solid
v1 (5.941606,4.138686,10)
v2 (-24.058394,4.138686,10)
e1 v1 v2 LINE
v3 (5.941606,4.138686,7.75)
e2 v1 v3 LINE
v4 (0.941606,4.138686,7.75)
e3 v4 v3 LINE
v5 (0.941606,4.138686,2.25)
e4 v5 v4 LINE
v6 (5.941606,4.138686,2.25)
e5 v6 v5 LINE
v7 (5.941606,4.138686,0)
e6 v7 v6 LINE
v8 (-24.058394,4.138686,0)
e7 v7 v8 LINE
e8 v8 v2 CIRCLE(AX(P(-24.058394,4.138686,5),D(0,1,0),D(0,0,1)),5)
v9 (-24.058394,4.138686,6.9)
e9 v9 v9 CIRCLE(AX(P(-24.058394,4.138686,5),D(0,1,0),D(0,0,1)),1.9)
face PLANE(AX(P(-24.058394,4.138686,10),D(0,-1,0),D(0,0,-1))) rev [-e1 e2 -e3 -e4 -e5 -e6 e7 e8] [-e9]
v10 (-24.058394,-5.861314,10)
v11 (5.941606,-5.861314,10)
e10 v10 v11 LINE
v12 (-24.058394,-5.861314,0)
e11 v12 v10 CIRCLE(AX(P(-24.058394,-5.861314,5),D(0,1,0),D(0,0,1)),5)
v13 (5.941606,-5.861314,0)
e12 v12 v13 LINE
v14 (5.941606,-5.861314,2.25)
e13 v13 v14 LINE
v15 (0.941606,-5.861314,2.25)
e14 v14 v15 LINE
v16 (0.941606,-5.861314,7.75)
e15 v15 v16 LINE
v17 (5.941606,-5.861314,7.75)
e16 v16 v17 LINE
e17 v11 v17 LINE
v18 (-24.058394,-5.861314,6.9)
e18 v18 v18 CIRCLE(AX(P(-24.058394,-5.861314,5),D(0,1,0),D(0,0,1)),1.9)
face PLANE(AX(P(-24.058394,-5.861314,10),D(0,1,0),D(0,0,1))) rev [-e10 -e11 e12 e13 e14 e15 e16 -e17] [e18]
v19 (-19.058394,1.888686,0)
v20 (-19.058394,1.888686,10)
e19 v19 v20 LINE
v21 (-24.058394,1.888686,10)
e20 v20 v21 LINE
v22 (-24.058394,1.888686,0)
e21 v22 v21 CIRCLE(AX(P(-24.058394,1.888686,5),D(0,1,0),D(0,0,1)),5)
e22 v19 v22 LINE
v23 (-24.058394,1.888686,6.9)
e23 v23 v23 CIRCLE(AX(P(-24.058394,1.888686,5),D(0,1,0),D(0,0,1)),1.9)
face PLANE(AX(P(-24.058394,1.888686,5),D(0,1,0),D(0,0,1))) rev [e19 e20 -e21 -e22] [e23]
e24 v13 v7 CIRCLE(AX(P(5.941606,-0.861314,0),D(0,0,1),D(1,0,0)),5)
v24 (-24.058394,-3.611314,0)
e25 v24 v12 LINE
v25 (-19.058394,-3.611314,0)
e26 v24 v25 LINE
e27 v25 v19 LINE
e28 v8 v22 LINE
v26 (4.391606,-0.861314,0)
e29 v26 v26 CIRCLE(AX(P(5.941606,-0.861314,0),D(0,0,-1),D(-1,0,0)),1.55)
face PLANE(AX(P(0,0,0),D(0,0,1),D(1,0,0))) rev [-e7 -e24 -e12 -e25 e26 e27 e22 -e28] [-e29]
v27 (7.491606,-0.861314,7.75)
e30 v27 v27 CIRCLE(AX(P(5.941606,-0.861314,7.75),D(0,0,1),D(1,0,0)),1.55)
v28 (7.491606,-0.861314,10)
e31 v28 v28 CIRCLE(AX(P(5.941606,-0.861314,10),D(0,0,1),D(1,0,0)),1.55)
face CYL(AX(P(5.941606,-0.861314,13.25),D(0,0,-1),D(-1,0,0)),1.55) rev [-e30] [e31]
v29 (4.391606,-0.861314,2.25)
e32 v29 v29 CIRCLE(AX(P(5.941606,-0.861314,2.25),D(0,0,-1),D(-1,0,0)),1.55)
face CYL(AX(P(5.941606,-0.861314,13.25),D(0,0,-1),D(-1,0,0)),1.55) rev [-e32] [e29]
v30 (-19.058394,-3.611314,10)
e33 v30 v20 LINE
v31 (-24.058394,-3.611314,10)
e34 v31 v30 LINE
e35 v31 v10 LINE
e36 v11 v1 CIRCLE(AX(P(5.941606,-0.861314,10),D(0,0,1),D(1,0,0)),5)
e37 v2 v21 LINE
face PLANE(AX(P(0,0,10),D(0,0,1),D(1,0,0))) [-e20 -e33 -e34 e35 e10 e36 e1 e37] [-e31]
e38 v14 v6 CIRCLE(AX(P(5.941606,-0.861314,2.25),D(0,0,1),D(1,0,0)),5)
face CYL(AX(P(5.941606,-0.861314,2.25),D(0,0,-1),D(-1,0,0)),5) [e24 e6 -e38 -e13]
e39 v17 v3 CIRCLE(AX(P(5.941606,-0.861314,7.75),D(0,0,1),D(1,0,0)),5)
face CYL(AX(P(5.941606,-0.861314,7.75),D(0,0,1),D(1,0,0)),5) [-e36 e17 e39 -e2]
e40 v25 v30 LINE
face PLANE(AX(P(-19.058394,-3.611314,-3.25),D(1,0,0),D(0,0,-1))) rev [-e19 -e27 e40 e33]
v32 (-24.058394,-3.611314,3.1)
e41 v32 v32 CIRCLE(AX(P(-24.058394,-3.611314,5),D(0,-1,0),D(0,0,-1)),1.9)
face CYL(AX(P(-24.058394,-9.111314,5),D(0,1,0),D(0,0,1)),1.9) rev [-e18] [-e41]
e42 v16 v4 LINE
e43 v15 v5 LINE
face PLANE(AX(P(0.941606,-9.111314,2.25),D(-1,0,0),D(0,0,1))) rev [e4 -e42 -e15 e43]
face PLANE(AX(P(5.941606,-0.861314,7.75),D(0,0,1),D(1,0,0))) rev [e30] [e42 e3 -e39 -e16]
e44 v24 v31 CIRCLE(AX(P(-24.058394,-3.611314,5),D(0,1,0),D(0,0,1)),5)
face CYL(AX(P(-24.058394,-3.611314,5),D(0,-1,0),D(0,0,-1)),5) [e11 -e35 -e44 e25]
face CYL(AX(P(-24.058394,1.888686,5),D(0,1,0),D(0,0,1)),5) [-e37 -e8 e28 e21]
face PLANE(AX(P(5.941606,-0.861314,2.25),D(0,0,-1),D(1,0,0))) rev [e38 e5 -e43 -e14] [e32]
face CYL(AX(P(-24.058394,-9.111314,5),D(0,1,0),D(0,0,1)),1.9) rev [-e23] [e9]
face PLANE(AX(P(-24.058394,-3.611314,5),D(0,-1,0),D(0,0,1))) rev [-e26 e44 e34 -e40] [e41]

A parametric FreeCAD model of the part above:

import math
import FreeCAD as App
import Part
import Sketcher
from FreeCAD import Vector
Q = App.Units.Quantity


def add_polygon(sketch, points):
    """Adds a closed chain of lines whose ends are joined by coincident constraints."""
    first, n = sketch.GeometryCount, len(points)
    for a, b in zip(points, points[1:] + points[:1]):
        sketch.addGeometry(Part.LineSegment(App.Vector(*a, 0), App.Vector(*b, 0)), False)
    for i in range(n):
        sketch.addConstraint(Sketcher.Constraint("Coincident", first + i, 2, first + (i + 1) % n, 1))

doc = App.newDocument("Part")
params = doc.addObject("Spreadsheet::Sheet", "Params")
for row, (alias, value) in enumerate([
    ("sketch1_width", "30 mm"),
    ("sketch1_height", "10 mm"),
    ("pad1_length", "10 mm"),
    ("sketch2_diameter", "10 mm"),
    ("pad2_length", "2.25 mm"),
    ("sketch3_radius", "5 mm"),
    ("pad3_length", "2.25 mm"),
    ("sketch4_radius", "5 mm"),
    ("pad4_length", "2.25 mm"),
    ("sketch5_radius", "5 mm"),
    ("pad5_length", "2.25 mm"),
    ("sketch6_diameter", "3.8 mm"),
    ("pocket1_length", "13.25 mm"),
    ("sketch7_diameter", "3.1 mm"),
    ("pocket2_length", "13.25 mm"),
    ("sketch8_width", "5 mm"),
    ("sketch8_height", "5.5 mm"),
    ("pocket3_length", "13.25 mm"),
    ("sketch9_width", "5 mm"),
    ("sketch9_height", "5.5 mm"),
    ("pocket4_length", "13.25 mm"),
], start=1):
    params.set(f"A{row}", alias)
    params.set(f"B{row}", "=" + value)
    params.setAlias(f"B{row}", alias)

body = doc.addObject("PartDesign::Body", "Body")

sketch1 = body.newObject("Sketcher::SketchObject", "Sketch")
sketch1.AttachmentSupport = (doc.getObject("XY_Plane"), [""])
sketch1.MapMode = "FlatFace"
add_polygon(sketch1, [(-24, 4), (-24, -6), (6, -6), (6, 4)])
sketch1.addConstraint([
    Sketcher.Constraint("Vertical", 0),
    Sketcher.Constraint("Horizontal", 1),
    Sketcher.Constraint("Vertical", 2),
    Sketcher.Constraint("Horizontal", 3),
    Sketcher.Constraint("DistanceX", 1, 1, 1, 2, Q("30 mm")),
    Sketcher.Constraint("DistanceY", 0, 2, 0, 1, Q("10 mm")),
    Sketcher.Constraint("DistanceX", 0, 2, -1, 1, Q("24.058394 mm")),
    Sketcher.Constraint("DistanceY", 0, 2, -1, 1, Q("5.861314 mm")),
])
sketch1.setExpression("Constraints[8]", "Params.sketch1_width")
sketch1.setExpression("Constraints[9]", "Params.sketch1_height")
pad1 = body.newObject("PartDesign::Pad", "Pad")
pad1.Profile = sketch1
pad1.setExpression("Length", "Params.pad1_length")

sketch2 = body.newObject("Sketcher::SketchObject", "Sketch001")
sketch2.AttachmentSupport = (doc.getObject("XY_Plane"), [""])
sketch2.MapMode = "FlatFace"
sketch2.AttachmentOffset = App.Placement(Vector(0, 0, 10), App.Rotation())
sketch2.addGeometry(Part.Circle(Vector(6, -1, 0), Vector(0, 0, 1), 5), False)
sketch2.addConstraint([
    Sketcher.Constraint("Diameter", 0, Q("10 mm")),
    Sketcher.Constraint("DistanceX", -1, 1, 0, 3, Q("5.941606 mm")),
    Sketcher.Constraint("DistanceY", 0, 3, -1, 1, Q("0.861314 mm")),
])
sketch2.setExpression("Constraints[0]", "Params.sketch2_diameter")
pad2 = body.newObject("PartDesign::Pad", "Pad001")
pad2.Profile = sketch2
pad2.setExpression("Length", "Params.pad2_length")
pad2.Reversed = True

sketch3 = body.newObject("Sketcher::SketchObject", "Sketch002")
sketch3.AttachmentSupport = (doc.getObject("XZ_Plane"), [""])
sketch3.MapMode = "FlatFace"
sketch3.AttachmentOffset = App.Placement(Vector(0, 0, -4.138686), App.Rotation())
sketch3.addGeometry([
    Part.LineSegment(Vector(-24, 10, 0), Vector(-24, 5, 0)),
    Part.LineSegment(Vector(-24, 5, 0), Vector(-29, 5, 0)),
    Part.ArcOfCircle(Part.Circle(Vector(-24, 5, 0), Vector(0, 0, 1), 5), math.radians(90), math.radians(180)),
], False)
sketch3.addConstraint([
    Sketcher.Constraint("Coincident", 0, 2, 1, 1),
    Sketcher.Constraint("Coincident", 1, 2, 2, 2),
    Sketcher.Constraint("Coincident", 2, 1, 0, 1),
    Sketcher.Constraint("Vertical", 0),
    Sketcher.Constraint("Horizontal", 1),
    Sketcher.Constraint("Coincident", 0, 2, 2, 3),
    Sketcher.Constraint("Radius", 2, Q("5 mm")),
    Sketcher.Constraint("DistanceY", -1, 1, 2, 3, Q("5 mm")),
    Sketcher.Constraint("DistanceX", 2, 3, -1, 1, Q("24.058394 mm")),
])
sketch3.setExpression("Constraints[6]", "Params.sketch3_radius")
pad3 = body.newObject("PartDesign::Pad", "Pad002")
pad3.Profile = sketch3
pad3.setExpression("Length", "Params.pad3_length")
doc.recompute()

datumplane = body.newObject("PartDesign::Plane", "DatumPlane")
datumplane.AttachmentSupport = (doc.getObject("XY_Plane"), [""])
datumplane.MapMode = "FlatFace"
datumplane.AttachmentOffset = App.Placement(Vector(0, 0, 5), App.Rotation())
mirrored = body.newObject("PartDesign::Mirrored", "Mirrored")
mirrored.Originals = [pad2, pad3]
mirrored.MirrorPlane = (datumplane, [""])
body.Tip = mirrored
doc.recompute()

datumplane2 = body.newObject("PartDesign::Plane", "DatumPlane001")
datumplane2.AttachmentSupport = (doc.getObject("XZ_Plane"), [""])
datumplane2.MapMode = "FlatFace"
datumplane2.AttachmentOffset = App.Placement(Vector(0, 0, 0.861314), App.Rotation())
mirrored2 = body.newObject("PartDesign::Mirrored", "Mirrored001")
mirrored2.Originals = [pad3]
mirrored2.MirrorPlane = (datumplane2, [""])
body.Tip = mirrored2

sketch4 = body.newObject("Sketcher::SketchObject", "Sketch003")
sketch4.AttachmentSupport = (doc.getObject("XZ_Plane"), [""])
sketch4.MapMode = "FlatFace"
sketch4.AttachmentOffset = App.Placement(Vector(0, 0, 5.861314), App.Rotation())
sketch4.addGeometry([
    Part.LineSegment(Vector(-24, 0, 0), Vector(-24, 5, 0)),
    Part.LineSegment(Vector(-24, 5, 0), Vector(-29, 5, 0)),
    Part.ArcOfCircle(Part.Circle(Vector(-24, 5, 0), Vector(0, 0, 1), 5), math.radians(180), math.radians(270)),
], False)
sketch4.addConstraint([
    Sketcher.Constraint("Coincident", 0, 2, 1, 1),
    Sketcher.Constraint("Coincident", 1, 2, 2, 1),
    Sketcher.Constraint("Coincident", 2, 2, 0, 1),
    Sketcher.Constraint("Vertical", 0),
    Sketcher.Constraint("Horizontal", 1),
    Sketcher.Constraint("Coincident", 0, 2, 2, 3),
    Sketcher.Constraint("PointOnObject", 2, 2, -1),
    Sketcher.Constraint("Radius", 2, Q("5 mm")),
    Sketcher.Constraint("DistanceX", 2, 3, -1, 1, Q("24.058394 mm")),
])
sketch4.setExpression("Constraints[7]", "Params.sketch4_radius")
pad4 = body.newObject("PartDesign::Pad", "Pad003")
pad4.Profile = sketch4
pad4.setExpression("Length", "Params.pad4_length")
pad4.Reversed = True

sketch5 = body.newObject("Sketcher::SketchObject", "Sketch004")
sketch5.AttachmentSupport = (doc.getObject("XZ_Plane"), [""])
sketch5.MapMode = "FlatFace"
sketch5.AttachmentOffset = App.Placement(Vector(0, 0, -4.138686), App.Rotation())
sketch5.addGeometry([
    Part.LineSegment(Vector(-24, 5, 0), Vector(-24, 0, 0)),
    Part.ArcOfCircle(Part.Circle(Vector(-24, 5, 0), Vector(0, 0, 1), 5), math.radians(180), math.radians(270)),
    Part.LineSegment(Vector(-29, 5, 0), Vector(-24, 5, 0)),
], False)
sketch5.addConstraint([
    Sketcher.Constraint("Coincident", 0, 2, 1, 2),
    Sketcher.Constraint("Coincident", 1, 1, 2, 1),
    Sketcher.Constraint("Coincident", 2, 2, 0, 1),
    Sketcher.Constraint("Vertical", 0),
    Sketcher.Constraint("Horizontal", 2),
    Sketcher.Constraint("Coincident", 2, 2, 1, 3),
    Sketcher.Constraint("PointOnObject", 0, 2, -1),
    Sketcher.Constraint("Radius", 1, Q("5 mm")),
    Sketcher.Constraint("DistanceX", 1, 3, -1, 1, Q("24.058394 mm")),
])
sketch5.setExpression("Constraints[7]", "Params.sketch5_radius")
pad5 = body.newObject("PartDesign::Pad", "Pad004")
pad5.Profile = sketch5
pad5.setExpression("Length", "Params.pad5_length")

sketch6 = body.newObject("Sketcher::SketchObject", "Sketch005")
sketch6.AttachmentSupport = (doc.getObject("XZ_Plane"), [""])
sketch6.MapMode = "FlatFace"
sketch6.AttachmentOffset = App.Placement(Vector(0, 0, -4.138686), App.Rotation())
sketch6.addGeometry(Part.Circle(Vector(-24.1, 5, 0), Vector(0, 0, 1), 1.9), False)
sketch6.addConstraint([
    Sketcher.Constraint("Diameter", 0, Q("3.8 mm")),
    Sketcher.Constraint("DistanceY", -1, 1, 0, 3, Q("5 mm")),
    Sketcher.Constraint("DistanceX", 0, 3, -1, 1, Q("24.058394 mm")),
])
sketch6.setExpression("Constraints[0]", "Params.sketch6_diameter")
pocket1 = body.newObject("PartDesign::Pocket", "Pocket")
pocket1.Profile = sketch6
pocket1.setExpression("Length", "Params.pocket1_length")
pocket1.Reversed = True

sketch7 = body.newObject("Sketcher::SketchObject", "Sketch006")
sketch7.AttachmentSupport = (doc.getObject("XY_Plane"), [""])
sketch7.MapMode = "FlatFace"
sketch7.addGeometry(Part.Circle(Vector(5.9, -0.9, 0), Vector(0, 0, 1), 1.6), False)
sketch7.addConstraint([
    Sketcher.Constraint("Diameter", 0, Q("3.1 mm")),
    Sketcher.Constraint("DistanceX", -1, 1, 0, 3, Q("5.941606 mm")),
    Sketcher.Constraint("DistanceY", 0, 3, -1, 1, Q("0.861314 mm")),
])
sketch7.setExpression("Constraints[0]", "Params.sketch7_diameter")
pocket2 = body.newObject("PartDesign::Pocket", "Pocket001")
pocket2.Profile = sketch7
pocket2.setExpression("Length", "Params.pocket2_length")
pocket2.Reversed = True

sketch8 = body.newObject("Sketcher::SketchObject", "Sketch007")
sketch8.AttachmentSupport = (doc.getObject("XZ_Plane"), [""])
sketch8.MapMode = "FlatFace"
sketch8.AttachmentOffset = App.Placement(Vector(0, 0, -4.138686), App.Rotation())
add_polygon(sketch8, [(1, 2), (1, 8), (6, 8), (6, 2)])
sketch8.addConstraint([
    Sketcher.Constraint("Vertical", 0),
    Sketcher.Constraint("Horizontal", 1),
    Sketcher.Constraint("Vertical", 2),
    Sketcher.Constraint("Horizontal", 3),
    Sketcher.Constraint("DistanceX", 1, 1, 1, 2, Q("5 mm")),
    Sketcher.Constraint("DistanceY", 0, 1, 0, 2, Q("5.5 mm")),
    Sketcher.Constraint("DistanceY", -1, 1, 0, 2, Q("7.75 mm")),
    Sketcher.Constraint("DistanceX", -1, 1, 0, 2, Q("0.941606 mm")),
])
sketch8.setExpression("Constraints[8]", "Params.sketch8_width")
sketch8.setExpression("Constraints[9]", "Params.sketch8_height")
pocket3 = body.newObject("PartDesign::Pocket", "Pocket002")
pocket3.Profile = sketch8
pocket3.setExpression("Length", "Params.pocket3_length")
pocket3.Reversed = True

sketch9 = body.newObject("Sketcher::SketchObject", "Sketch008")
sketch9.AttachmentSupport = (doc.getObject("XY_Plane"), [""])
sketch9.MapMode = "FlatFace"
sketch9.AttachmentOffset = App.Placement(Vector(0, 0, 10), App.Rotation())
add_polygon(sketch9, [(-24, 2), (-24, -4), (-19, -4), (-19, 2)])
sketch9.addConstraint([
    Sketcher.Constraint("Vertical", 0),
    Sketcher.Constraint("Horizontal", 1),
    Sketcher.Constraint("Vertical", 2),
    Sketcher.Constraint("Horizontal", 3),
    Sketcher.Constraint("DistanceX", 1, 1, 1, 2, Q("5 mm")),
    Sketcher.Constraint("DistanceY", 0, 2, 0, 1, Q("5.5 mm")),
    Sketcher.Constraint("DistanceX", 0, 2, -1, 1, Q("24.058394 mm")),
    Sketcher.Constraint("DistanceY", 0, 2, -1, 1, Q("3.611314 mm")),
])
sketch9.setExpression("Constraints[8]", "Params.sketch9_width")
sketch9.setExpression("Constraints[9]", "Params.sketch9_height")
pocket4 = body.newObject("PartDesign::Pocket", "Pocket003")
pocket4.Profile = sketch9
pocket4.setExpression("Length", "Params.pocket4_length")

doc.recompute()
